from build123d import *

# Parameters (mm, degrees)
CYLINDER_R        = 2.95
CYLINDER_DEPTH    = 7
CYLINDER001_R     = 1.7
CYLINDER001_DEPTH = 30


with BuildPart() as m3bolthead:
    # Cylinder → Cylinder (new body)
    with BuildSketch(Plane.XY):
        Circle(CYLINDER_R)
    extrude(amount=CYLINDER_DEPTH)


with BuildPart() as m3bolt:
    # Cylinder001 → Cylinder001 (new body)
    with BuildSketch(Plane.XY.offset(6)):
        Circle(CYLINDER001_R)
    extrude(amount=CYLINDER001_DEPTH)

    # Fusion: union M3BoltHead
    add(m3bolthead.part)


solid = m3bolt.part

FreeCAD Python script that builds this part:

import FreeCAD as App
import Part
import Sketcher
Q = App.Units.Quantity

doc = App.newDocument("Part")
body = doc.addObject("PartDesign::Body", "Body")

# Sketch on XY plane
sketch1 = doc.addObject("Sketcher::SketchObject", "Sketch")
body.addObject(sketch1)
sketch1.AttachmentSupport = (doc.XY_Plane, [""])
sketch1.MapMode = "FlatFace"
sketch1.addGeometry(Part.Circle(App.Vector(0, 0, 0), App.Vector(0, 0, 1), 3), False)
sketch1.addConstraint([
    Sketcher.Constraint("Coincident", 0, 3, -1, 1),
    Sketcher.Constraint("Diameter", 0, Q("5.9 mm")),
])
pad1 = doc.addObject("PartDesign::Pad", "Pad")
body.addObject(pad1)
pad1.Profile = sketch1
pad1.Length = 7
body2 = doc.addObject("PartDesign::Body", "Body001")

# Sketch on XY plane
sketch2 = doc.addObject("Sketcher::SketchObject", "Sketch001")
body2.addObject(sketch2)
sketch2.AttachmentSupport = (doc.getObject("XY_Plane001"), [""])
sketch2.MapMode = "FlatFace"
sketch2.AttachmentOffset = App.Placement(App.Vector(0, 0, 6), App.Rotation())
sketch2.addGeometry(Part.Circle(App.Vector(0, 0, 0), App.Vector(0, 0, 1), 1.7), False)
sketch2.addConstraint([
    Sketcher.Constraint("Coincident", 0, 3, -1, 1),
    Sketcher.Constraint("Diameter", 0, Q("3.4 mm")),
])
pad2 = doc.addObject("PartDesign::Pad", "Pad001")
body2.addObject(pad2)
pad2.Profile = sketch2
pad2.Length = 30
doc.recompute()

boolean = doc.addObject("PartDesign::Boolean", "Boolean")
body2.addObject(boolean)
boolean.Type = "Fuse"
boolean.addObjects([body])

doc.recompute()
